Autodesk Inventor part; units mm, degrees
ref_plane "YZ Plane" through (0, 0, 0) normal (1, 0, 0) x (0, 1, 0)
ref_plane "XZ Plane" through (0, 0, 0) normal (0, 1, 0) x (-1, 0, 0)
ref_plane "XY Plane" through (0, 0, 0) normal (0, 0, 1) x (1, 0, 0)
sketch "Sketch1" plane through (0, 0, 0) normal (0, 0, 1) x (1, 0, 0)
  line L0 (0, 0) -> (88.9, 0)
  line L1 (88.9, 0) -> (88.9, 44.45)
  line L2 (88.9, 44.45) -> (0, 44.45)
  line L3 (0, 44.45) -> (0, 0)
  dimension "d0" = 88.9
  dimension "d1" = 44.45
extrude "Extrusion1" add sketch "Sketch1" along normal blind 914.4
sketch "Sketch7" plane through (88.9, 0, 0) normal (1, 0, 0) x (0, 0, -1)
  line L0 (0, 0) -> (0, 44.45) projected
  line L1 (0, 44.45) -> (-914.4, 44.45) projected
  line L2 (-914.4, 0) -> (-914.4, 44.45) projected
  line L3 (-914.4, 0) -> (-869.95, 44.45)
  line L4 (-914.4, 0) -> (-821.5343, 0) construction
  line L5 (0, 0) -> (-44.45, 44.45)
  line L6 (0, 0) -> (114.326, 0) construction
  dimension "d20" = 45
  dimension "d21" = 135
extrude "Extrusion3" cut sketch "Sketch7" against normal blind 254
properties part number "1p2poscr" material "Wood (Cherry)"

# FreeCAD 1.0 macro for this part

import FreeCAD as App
import Part
import Sketcher
from FreeCAD import Vector
Q = App.Units.Quantity

doc = App.newDocument("Part")
params = doc.addObject("Spreadsheet::Sheet", "Params")
for row, (alias, value) in enumerate([
    ("sketch1_width", "3.5 in"),
    ("sketch1_height", "1.75 in"),
    ("pad1_length", "36 in"),
    ("sketch2_width", "1.75 in"),
    ("pocket1_length", "10 in"),
], start=1):
    params.set(f"A{row}", alias)
    params.set(f"B{row}", "=" + value)
    params.setAlias(f"B{row}", alias)

body = doc.addObject("PartDesign::Body", "Body")

sketch1 = doc.addObject("Sketcher::SketchObject", "Sketch")
body.addObject(sketch1)
sketch1.AttachmentSupport = (doc.XY_Plane, [""])
sketch1.MapMode = "FlatFace"
sketch1.addGeometry(Part.LineSegment(Vector(0, 44.45, 0), Vector(0, 0, 0)), False)
sketch1.addGeometry(Part.LineSegment(Vector(0, 0, 0), Vector(88.9, 0, 0)), False)
sketch1.addGeometry(Part.LineSegment(Vector(88.9, 0, 0), Vector(88.9, 44.45, 0)), False)
sketch1.addGeometry(Part.LineSegment(Vector(88.9, 44.45, 0), Vector(0, 44.45, 0)), False)
sketch1.addConstraint(Sketcher.Constraint("Coincident", 0, 2, 1, 1))
sketch1.addConstraint(Sketcher.Constraint("Coincident", 1, 2, 2, 1))
sketch1.addConstraint(Sketcher.Constraint("Coincident", 2, 2, 3, 1))
sketch1.addConstraint(Sketcher.Constraint("Coincident", 3, 2, 0, 1))
sketch1.addConstraint(Sketcher.Constraint("Vertical", 0))
sketch1.addConstraint(Sketcher.Constraint("Horizontal", 1))
sketch1.addConstraint(Sketcher.Constraint("Vertical", 2))
sketch1.addConstraint(Sketcher.Constraint("Horizontal", 3))
sketch1.addConstraint(Sketcher.Constraint("Coincident", 0, 2, -1, 1))
sketch1.addConstraint(Sketcher.Constraint("DistanceX", 1, 1, 1, 2, Q("3.5 in")))
sketch1.addConstraint(Sketcher.Constraint("DistanceY", 0, 2, 0, 1, Q("1.75 in")))
sketch1.setExpression("Constraints[9]", "Params.sketch1_width")
sketch1.setExpression("Constraints[10]", "Params.sketch1_height")
pad1 = doc.addObject("PartDesign::Pad", "Pad")
body.addObject(pad1)
pad1.Profile = sketch1
pad1.setExpression("Length", "Params.pad1_length")

sketch2 = doc.addObject("Sketcher::SketchObject", "Sketch001")
body.addObject(sketch2)
sketch2.AttachmentSupport = (doc.YZ_Plane, [""])
sketch2.MapMode = "FlatFace"
sketch2.AttachmentOffset = App.Placement(Vector(0, 0, 3.5 * 25.4), App.Rotation())
sketch2.addGeometry(Part.LineSegment(Vector(44.45, 44.45, 0), Vector(0, 0, 0)), False)
sketch2.addGeometry(Part.LineSegment(Vector(0, 0, 0), Vector(44.45, 0, 0)), False)
sketch2.addGeometry(Part.LineSegment(Vector(44.45, 0, 0), Vector(44.45, 44.45, 0)), False)
sketch2.addGeometry(Part.LineSegment(Vector(0, 914.4, 0), Vector(44.45, 869.95, 0)), False)
sketch2.addGeometry(Part.LineSegment(Vector(44.45, 869.95, 0), Vector(44.45, 914.4, 0)), False)
sketch2.addGeometry(Part.LineSegment(Vector(44.45, 914.4, 0), Vector(0, 914.4, 0)), False)
sketch2.addConstraint(Sketcher.Constraint("Coincident", 0, 2, 1, 1))
sketch2.addConstraint(Sketcher.Constraint("Coincident", 1, 2, 2, 1))
sketch2.addConstraint(Sketcher.Constraint("Coincident", 2, 2, 0, 1))
sketch2.addConstraint(Sketcher.Constraint("Coincident", 3, 2, 4, 1))
sketch2.addConstraint(Sketcher.Constraint("Coincident", 4, 2, 5, 1))
sketch2.addConstraint(Sketcher.Constraint("Coincident", 5, 2, 3, 1))
sketch2.addConstraint(Sketcher.Constraint("Horizontal", 1))
sketch2.addConstraint(Sketcher.Constraint("Vertical", 2))
sketch2.addConstraint(Sketcher.Constraint("Vertical", 4))
sketch2.addConstraint(Sketcher.Constraint("Horizontal", 5))
sketch2.addConstraint(Sketcher.Constraint("Coincident", 0, 2, -1, 1))
sketch2.addConstraint(Sketcher.Constraint("PointOnObject", 5, 2, -2))
sketch2.addConstraint(Sketcher.Constraint("Perpendicular", 0, 3))
sketch2.addConstraint(Sketcher.Constraint("Vertical", 2, 2, 3, 2))
sketch2.addConstraint(Sketcher.Constraint("Equal", 5, 2))
sketch2.addConstraint(Sketcher.Constraint("DistanceY", -1, 1, 4, 2, Q("36 in")))
sketch2.addConstraint(Sketcher.Constraint("DistanceX", 1, 1, 1, 2, Q("1.75 in")))
sketch2.setExpression("Constraints[16]", "Params.sketch2_width")
pocket1 = doc.addObject("PartDesign::Pocket", "Pocket")
body.addObject(pocket1)
pocket1.Profile = sketch2
pocket1.setExpression("Length", "Params.pocket1_length")

doc.recompute()
